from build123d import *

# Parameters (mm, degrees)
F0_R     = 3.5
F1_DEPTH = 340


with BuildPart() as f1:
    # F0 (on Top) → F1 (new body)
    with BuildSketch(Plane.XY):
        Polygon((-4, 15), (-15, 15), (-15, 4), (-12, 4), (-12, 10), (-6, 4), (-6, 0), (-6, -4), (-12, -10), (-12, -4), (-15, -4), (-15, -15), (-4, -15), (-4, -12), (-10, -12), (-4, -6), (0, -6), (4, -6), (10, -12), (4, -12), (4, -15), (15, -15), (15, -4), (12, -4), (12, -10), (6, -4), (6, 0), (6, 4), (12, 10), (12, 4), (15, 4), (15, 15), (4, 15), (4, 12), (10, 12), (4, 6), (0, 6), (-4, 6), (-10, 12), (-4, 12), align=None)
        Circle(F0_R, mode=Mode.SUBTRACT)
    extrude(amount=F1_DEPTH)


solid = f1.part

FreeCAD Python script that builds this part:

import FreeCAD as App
import Part
import Sketcher
from FreeCAD import Vector
Q = App.Units.Quantity


def add_polygon(sketch, points):
    """Adds a closed chain of lines whose ends are joined by coincident constraints."""
    first, n = sketch.GeometryCount, len(points)
    for a, b in zip(points, points[1:] + points[:1]):
        sketch.addGeometry(Part.LineSegment(App.Vector(*a, 0), App.Vector(*b, 0)), False)
    for i in range(n):
        sketch.addConstraint(Sketcher.Constraint("Coincident", first + i, 2, first + (i + 1) % n, 1))

doc = App.newDocument("Part")
params = doc.addObject("Spreadsheet::Sheet", "Params")
for row, (alias, value) in enumerate([
    ("sketch1_diameter", "7 mm"),
    ("sketch1_width", "11 mm"),
    ("sketch1_width2", "3 mm"),
    ("sketch1_width3", "6 mm"),
    ("sketch1_width4", "8 mm"),
    ("pad1_length", "340 mm"),
], start=1):
    params.set(f"A{row}", alias)
    params.set(f"B{row}", "=" + value)
    params.setAlias(f"B{row}", alias)

body = doc.addObject("PartDesign::Body", "Body")

sketch1 = body.newObject("Sketcher::SketchObject", "Sketch")
sketch1.AttachmentSupport = (doc.getObject("XY_Plane"), [""])
sketch1.MapMode = "FlatFace"
add_polygon(sketch1, [(-4, 15), (-15, 15), (-15, 4), (-12, 4), (-12, 10), (-6, 4), (-6, -4), (-12, -10), (-12, -4), (-15, -4), (-15, -15), (-4, -15), (-4, -12), (-10, -12), (-4, -6), (4, -6), (10, -12), (4, -12), (4, -15), (15, -15), (15, -4), (12, -4), (12, -10), (6, -4), (6, 4), (12, 10), (12, 4), (15, 4), (15, 15), (4, 15), (4, 12), (10, 12), (4, 6), (-4, 6), (-10, 12), (-4, 12)])
sketch1.addGeometry(Part.Circle(Vector(0, 0, 0), Vector(0, 0, 1), 3.5), False)
sketch1.addConstraint([
    Sketcher.Constraint("Horizontal", 0),
    Sketcher.Constraint("Vertical", 1),
    Sketcher.Constraint("Horizontal", 2),
    Sketcher.Constraint("Vertical", 3),
    Sketcher.Constraint("Vertical", 5),
    Sketcher.Constraint("Vertical", 7),
    Sketcher.Constraint("Horizontal", 8),
    Sketcher.Constraint("Vertical", 9),
    Sketcher.Constraint("Horizontal", 10),
    Sketcher.Constraint("Vertical", 11),
    Sketcher.Constraint("Horizontal", 12),
    Sketcher.Constraint("Horizontal", 14),
    Sketcher.Constraint("Horizontal", 16),
    Sketcher.Constraint("Vertical", 17),
    Sketcher.Constraint("Horizontal", 18),
    Sketcher.Constraint("Vertical", 19),
    Sketcher.Constraint("Horizontal", 20),
    Sketcher.Constraint("Vertical", 21),
    Sketcher.Constraint("Vertical", 23),
    Sketcher.Constraint("Vertical", 25),
    Sketcher.Constraint("Horizontal", 26),
    Sketcher.Constraint("Vertical", 27),
    Sketcher.Constraint("Horizontal", 28),
    Sketcher.Constraint("Vertical", 29),
    Sketcher.Constraint("Horizontal", 30),
    Sketcher.Constraint("Horizontal", 32),
    Sketcher.Constraint("Horizontal", 34),
    Sketcher.Constraint("Vertical", 35),
    Sketcher.Constraint("Coincident", 36, 3, -1, 1),
    Sketcher.Constraint("Symmetric", 0, 2, 18, 2, -1, 1),
    Sketcher.Constraint("Symmetric", 2, 2, 20, 2, -1, 1),
    Sketcher.Constraint("Symmetric", 4, 2, 22, 2, -1, 1),
    Sketcher.Constraint("Symmetric", 6, 2, 24, 2, -1, 1),
    Sketcher.Constraint("Symmetric", 8, 2, 26, 2, -1, 1),
    Sketcher.Constraint("Symmetric", 10, 2, 28, 2, -1, 1),
    Sketcher.Constraint("Symmetric", 12, 2, 30, 2, -1, 1),
    Sketcher.Constraint("Symmetric", 13, 2, 31, 2, -1, 1),
    Sketcher.Constraint("Symmetric", 15, 2, 33, 2, -1, 1),
    Sketcher.Constraint("Symmetric", 12, 2, 15, 2, -2),
    Sketcher.Constraint("Symmetric", 10, 2, 17, 2, -2),
    Sketcher.Constraint("Symmetric", 8, 2, 19, 2, -2),
    Sketcher.Constraint("Symmetric", 6, 2, 21, 2, -2),
    Sketcher.Constraint("Perpendicular", 4, 6),
    Sketcher.Constraint("Parallel", 6, 13),
    Sketcher.Constraint("Perpendicular", 13, 15),
    Sketcher.Constraint("Parallel", 15, 22),
    Sketcher.Constraint("Perpendicular", 22, 24),
    Sketcher.Constraint("Perpendicular", 31, 33),
    Sketcher.Constraint("Horizontal", 2, 2, 4, 2),
    Sketcher.Constraint("Horizontal", 5, 2, 7, 2),
    Sketcher.Constraint("Vertical", 11, 2, 13, 2),
    Sketcher.Constraint("Vertical", 32, 2, 34, 2),
    Sketcher.Constraint("Equal", 28, 1),
    Sketcher.Constraint("Equal", 34, 3),
    Sketcher.Constraint("Equal", 32, 5),
    Sketcher.Constraint("Equal", 26, 11),
    Sketcher.Constraint("Diameter", 36, Q("7 mm")),
    Sketcher.Constraint("DistanceX", 0, 2, 0, 1, Q("11 mm")),
    Sketcher.Constraint("DistanceX", 2, 1, 2, 2, Q("3 mm")),
    Sketcher.Constraint("DistanceX", 12, 2, 12, 1, Q("6 mm")),
    Sketcher.Constraint("DistanceX", 14, 1, 14, 2, Q("8 mm")),
])
sketch1.setExpression("Constraints[92]", "Params.sketch1_diameter")
sketch1.setExpression("Constraints[93]", "Params.sketch1_width")
sketch1.setExpression("Constraints[94]", "Params.sketch1_width2")
sketch1.setExpression("Constraints[95]", "Params.sketch1_width3")
sketch1.setExpression("Constraints[96]", "Params.sketch1_width4")
pad1 = body.newObject("PartDesign::Pad", "Pad")
pad1.Profile = sketch1
pad1.setExpression("Length", "Params.pad1_length")

doc.recompute()
